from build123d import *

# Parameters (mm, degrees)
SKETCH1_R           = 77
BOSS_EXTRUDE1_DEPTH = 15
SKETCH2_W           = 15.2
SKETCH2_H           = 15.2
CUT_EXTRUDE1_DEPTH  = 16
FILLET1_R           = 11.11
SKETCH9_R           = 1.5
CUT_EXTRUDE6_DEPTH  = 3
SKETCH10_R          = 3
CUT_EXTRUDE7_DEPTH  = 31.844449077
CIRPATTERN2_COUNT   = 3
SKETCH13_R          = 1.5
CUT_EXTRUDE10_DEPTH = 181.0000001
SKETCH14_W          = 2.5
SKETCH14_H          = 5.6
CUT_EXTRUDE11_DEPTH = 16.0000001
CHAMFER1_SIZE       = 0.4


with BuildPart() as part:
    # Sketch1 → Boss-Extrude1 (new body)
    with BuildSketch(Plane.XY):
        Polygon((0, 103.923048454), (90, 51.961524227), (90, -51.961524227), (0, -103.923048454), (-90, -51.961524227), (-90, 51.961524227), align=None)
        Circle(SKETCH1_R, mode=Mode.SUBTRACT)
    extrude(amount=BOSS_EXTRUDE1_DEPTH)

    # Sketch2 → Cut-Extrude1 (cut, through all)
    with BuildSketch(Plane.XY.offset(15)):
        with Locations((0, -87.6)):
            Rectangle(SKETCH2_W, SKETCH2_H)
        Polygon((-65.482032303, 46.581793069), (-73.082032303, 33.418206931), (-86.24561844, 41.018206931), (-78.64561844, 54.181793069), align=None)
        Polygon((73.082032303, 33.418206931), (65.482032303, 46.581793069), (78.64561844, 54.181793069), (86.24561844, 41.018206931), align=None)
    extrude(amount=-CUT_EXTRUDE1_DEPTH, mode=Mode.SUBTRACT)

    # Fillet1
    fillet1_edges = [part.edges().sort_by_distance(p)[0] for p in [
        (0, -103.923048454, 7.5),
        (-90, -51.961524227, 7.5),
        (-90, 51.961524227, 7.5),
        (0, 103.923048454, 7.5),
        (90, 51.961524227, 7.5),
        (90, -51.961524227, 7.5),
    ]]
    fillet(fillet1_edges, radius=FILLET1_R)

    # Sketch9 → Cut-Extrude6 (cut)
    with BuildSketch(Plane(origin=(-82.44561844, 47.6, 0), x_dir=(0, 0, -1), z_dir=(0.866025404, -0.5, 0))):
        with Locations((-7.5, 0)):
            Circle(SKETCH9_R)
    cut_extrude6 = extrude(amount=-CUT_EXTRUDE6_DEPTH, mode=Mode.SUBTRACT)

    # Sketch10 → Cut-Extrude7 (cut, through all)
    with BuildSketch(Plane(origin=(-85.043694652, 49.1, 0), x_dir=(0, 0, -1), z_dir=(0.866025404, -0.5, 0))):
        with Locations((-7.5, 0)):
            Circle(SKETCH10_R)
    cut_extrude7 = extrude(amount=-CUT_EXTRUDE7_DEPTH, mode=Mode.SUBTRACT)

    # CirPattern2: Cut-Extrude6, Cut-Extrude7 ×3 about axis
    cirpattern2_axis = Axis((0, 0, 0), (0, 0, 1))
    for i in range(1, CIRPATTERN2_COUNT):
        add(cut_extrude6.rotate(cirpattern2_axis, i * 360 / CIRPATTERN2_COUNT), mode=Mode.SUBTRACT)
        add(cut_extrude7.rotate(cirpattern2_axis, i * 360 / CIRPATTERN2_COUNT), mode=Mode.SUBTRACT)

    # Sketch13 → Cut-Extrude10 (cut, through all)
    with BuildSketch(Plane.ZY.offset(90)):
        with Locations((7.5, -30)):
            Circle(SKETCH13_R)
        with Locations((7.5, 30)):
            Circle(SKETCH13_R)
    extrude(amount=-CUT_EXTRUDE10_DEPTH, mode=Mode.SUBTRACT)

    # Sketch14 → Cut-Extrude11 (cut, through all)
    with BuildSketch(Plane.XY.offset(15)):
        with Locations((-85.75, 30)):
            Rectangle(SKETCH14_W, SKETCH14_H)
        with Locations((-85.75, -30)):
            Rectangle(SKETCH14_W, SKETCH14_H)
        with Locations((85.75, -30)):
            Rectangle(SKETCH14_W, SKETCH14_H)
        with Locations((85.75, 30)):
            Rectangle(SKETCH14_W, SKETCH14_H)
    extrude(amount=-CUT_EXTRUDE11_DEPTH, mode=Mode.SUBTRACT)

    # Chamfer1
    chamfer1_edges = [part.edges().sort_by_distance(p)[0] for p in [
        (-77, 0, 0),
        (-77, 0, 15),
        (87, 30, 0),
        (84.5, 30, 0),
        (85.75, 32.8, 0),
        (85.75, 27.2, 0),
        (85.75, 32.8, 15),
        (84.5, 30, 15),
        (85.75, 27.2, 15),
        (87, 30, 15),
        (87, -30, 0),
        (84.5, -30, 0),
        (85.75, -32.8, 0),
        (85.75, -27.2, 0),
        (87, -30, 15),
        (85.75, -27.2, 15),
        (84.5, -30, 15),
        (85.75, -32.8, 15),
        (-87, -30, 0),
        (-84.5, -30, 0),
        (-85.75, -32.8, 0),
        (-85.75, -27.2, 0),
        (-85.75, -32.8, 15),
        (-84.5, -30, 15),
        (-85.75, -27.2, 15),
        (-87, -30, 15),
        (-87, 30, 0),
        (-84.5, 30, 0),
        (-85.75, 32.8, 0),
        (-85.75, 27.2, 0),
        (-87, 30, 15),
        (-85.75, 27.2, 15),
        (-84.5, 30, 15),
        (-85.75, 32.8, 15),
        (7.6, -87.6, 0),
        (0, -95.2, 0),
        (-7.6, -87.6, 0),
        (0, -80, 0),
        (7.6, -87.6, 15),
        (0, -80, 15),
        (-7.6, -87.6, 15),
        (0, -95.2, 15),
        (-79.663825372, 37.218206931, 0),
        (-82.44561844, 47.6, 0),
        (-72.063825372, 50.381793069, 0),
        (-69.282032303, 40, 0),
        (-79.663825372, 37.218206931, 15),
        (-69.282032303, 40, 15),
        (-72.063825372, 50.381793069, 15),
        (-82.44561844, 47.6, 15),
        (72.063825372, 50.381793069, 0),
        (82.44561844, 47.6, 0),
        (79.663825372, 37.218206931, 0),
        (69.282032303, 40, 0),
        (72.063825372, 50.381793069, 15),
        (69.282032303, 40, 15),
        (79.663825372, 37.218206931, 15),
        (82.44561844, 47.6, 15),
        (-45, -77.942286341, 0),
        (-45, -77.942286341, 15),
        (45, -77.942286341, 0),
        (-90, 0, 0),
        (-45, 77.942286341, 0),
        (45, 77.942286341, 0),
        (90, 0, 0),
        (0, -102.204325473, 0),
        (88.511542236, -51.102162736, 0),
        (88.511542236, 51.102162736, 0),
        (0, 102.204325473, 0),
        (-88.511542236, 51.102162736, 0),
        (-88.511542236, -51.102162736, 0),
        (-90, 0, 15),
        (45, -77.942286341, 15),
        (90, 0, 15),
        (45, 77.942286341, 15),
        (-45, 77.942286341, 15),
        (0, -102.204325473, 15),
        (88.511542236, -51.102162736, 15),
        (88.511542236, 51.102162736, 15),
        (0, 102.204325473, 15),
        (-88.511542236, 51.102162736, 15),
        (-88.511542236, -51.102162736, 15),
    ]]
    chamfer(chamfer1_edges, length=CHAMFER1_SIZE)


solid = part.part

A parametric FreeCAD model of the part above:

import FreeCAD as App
import Part
import Sketcher
Q = App.Units.Quantity


def edges_at(feature, points):
    """Names of the edges that pass closest to the given points."""
    edges = feature.Shape.Edges
    near = lambda p: min(range(len(edges)), key=lambda i: edges[i].distToShape(Part.Vertex(*p))[0])
    return sorted({f"Edge{near(p) + 1}" for p in points})

doc = App.newDocument("Part")
body = doc.addObject("PartDesign::Body", "Body")

# Sketch on XY plane
sketch1 = body.newObject("Sketcher::SketchObject", "Sketch")
sketch1.AttachmentSupport = (doc.getObject("XY_Plane"), [""])
sketch1.MapMode = "FlatFace"
sketch1.addGeometry(Part.LineSegment(App.Vector(90, 52, 0), App.Vector(0, 104, 0)), False)
sketch1.addGeometry(Part.LineSegment(App.Vector(0, 104, 0), App.Vector(-90, 52, 0)), False)
sketch1.addGeometry(Part.LineSegment(App.Vector(-90, 52, 0), App.Vector(-90, -52, 0)), False)
sketch1.addGeometry(Part.LineSegment(App.Vector(-90, -52, 0), App.Vector(0, -104, 0)), False)
sketch1.addGeometry(Part.LineSegment(App.Vector(0, -104, 0), App.Vector(90, -52, 0)), False)
sketch1.addGeometry(Part.LineSegment(App.Vector(90, -52, 0), App.Vector(90, 52, 0)), False)
sketch1.addGeometry(Part.Circle(App.Vector(0, 0, 0), App.Vector(0, 0, 1), 77), False)
sketch1.addConstraint(Sketcher.Constraint("Coincident", 0, 2, 1, 1))
sketch1.addConstraint(Sketcher.Constraint("Coincident", 1, 2, 2, 1))
sketch1.addConstraint(Sketcher.Constraint("Coincident", 2, 2, 3, 1))
sketch1.addConstraint(Sketcher.Constraint("Coincident", 3, 2, 4, 1))
sketch1.addConstraint(Sketcher.Constraint("Coincident", 4, 2, 5, 1))
sketch1.addConstraint(Sketcher.Constraint("Coincident", 5, 2, 0, 1))
sketch1.addConstraint(Sketcher.Constraint("Vertical", 2))
sketch1.addConstraint(Sketcher.Constraint("Vertical", 5))
sketch1.addConstraint(Sketcher.Constraint("Coincident", 6, 3, -1, 1))
sketch1.addConstraint(Sketcher.Constraint("Symmetric", 0, 2, 3, 2, -1, 1))
sketch1.addConstraint(Sketcher.Constraint("Symmetric", 1, 2, 4, 2, -1, 1))
sketch1.addConstraint(Sketcher.Constraint("PointOnObject", 0, 2, -2))
sketch1.addConstraint(Sketcher.Constraint("Parallel", 0, 3))
sketch1.addConstraint(Sketcher.Constraint("Horizontal", 2, 2, 4, 2))
sketch1.addConstraint(Sketcher.Constraint("Diameter", 6, Q("154 mm")))
sketch1.addConstraint(Sketcher.Constraint("Angle", 0, Q("150 deg")))
sketch1.addConstraint(Sketcher.Constraint("DistanceX", 1, 2, -1, 1, Q("90 mm")))
sketch1.addConstraint(Sketcher.Constraint("DistanceY", 2, 2, 2, 1, Q("103.923048 mm")))
pad1 = body.newObject("PartDesign::Pad", "Pad")
pad1.Profile = sketch1
pad1.Length = 15

# Sketch on XY plane
sketch2 = body.newObject("Sketcher::SketchObject", "Sketch001")
sketch2.AttachmentSupport = (doc.getObject("XY_Plane"), [""])
sketch2.MapMode = "FlatFace"
sketch2.AttachmentOffset = App.Placement(App.Vector(0, 0, 15), App.Rotation())
sketch2.addGeometry(Part.LineSegment(App.Vector(-8, -80, 0), App.Vector(-8, -95, 0)), False)
sketch2.addGeometry(Part.LineSegment(App.Vector(-8, -95, 0), App.Vector(8, -95, 0)), False)
sketch2.addGeometry(Part.LineSegment(App.Vector(8, -95, 0), App.Vector(8, -80, 0)), False)
sketch2.addGeometry(Part.LineSegment(App.Vector(8, -80, 0), App.Vector(-8, -80, 0)), False)
sketch2.addGeometry(Part.LineSegment(App.Vector(-73, 33, 0), App.Vector(-65, 47, 0)), False)
sketch2.addGeometry(Part.LineSegment(App.Vector(-65, 47, 0), App.Vector(-79, 54, 0)), False)
sketch2.addGeometry(Part.LineSegment(App.Vector(-79, 54, 0), App.Vector(-86, 41, 0)), False)
sketch2.addGeometry(Part.LineSegment(App.Vector(-86, 41, 0), App.Vector(-73, 33, 0)), False)
sketch2.addGeometry(Part.LineSegment(App.Vector(65, 47, 0), App.Vector(73, 33, 0)), False)
sketch2.addGeometry(Part.LineSegment(App.Vector(73, 33, 0), App.Vector(86, 41, 0)), False)
sketch2.addGeometry(Part.LineSegment(App.Vector(86, 41, 0), App.Vector(79, 54, 0)), False)
sketch2.addGeometry(Part.LineSegment(App.Vector(79, 54, 0), App.Vector(65, 47, 0)), False)
sketch2.addConstraint(Sketcher.Constraint("Coincident", 0, 2, 1, 1))
sketch2.addConstraint(Sketcher.Constraint("Coincident", 1, 2, 2, 1))
sketch2.addConstraint(Sketcher.Constraint("Coincident", 2, 2, 3, 1))
sketch2.addConstraint(Sketcher.Constraint("Coincident", 3, 2, 0, 1))
sketch2.addConstraint(Sketcher.Constraint("Coincident", 4, 2, 5, 1))
sketch2.addConstraint(Sketcher.Constraint("Coincident", 5, 2, 6, 1))
sketch2.addConstraint(Sketcher.Constraint("Coincident", 6, 2, 7, 1))
sketch2.addConstraint(Sketcher.Constraint("Coincident", 7, 2, 4, 1))
sketch2.addConstraint(Sketcher.Constraint("Coincident", 8, 2, 9, 1))
sketch2.addConstraint(Sketcher.Constraint("Coincident", 9, 2, 10, 1))
sketch2.addConstraint(Sketcher.Constraint("Coincident", 10, 2, 11, 1))
sketch2.addConstraint(Sketcher.Constraint("Coincident", 11, 2, 8, 1))
sketch2.addConstraint(Sketcher.Constraint("Vertical", 0))
sketch2.addConstraint(Sketcher.Constraint("Horizontal", 1))
sketch2.addConstraint(Sketcher.Constraint("Vertical", 2))
sketch2.addConstraint(Sketcher.Constraint("Horizontal", 3))
sketch2.addConstraint(Sketcher.Constraint("Symmetric", 7, 2, 8, 2, -2))
sketch2.addConstraint(Sketcher.Constraint("Symmetric", 6, 2, 9, 2, -2))
sketch2.addConstraint(Sketcher.Constraint("Symmetric", 5, 2, 10, 2, -2))
sketch2.addConstraint(Sketcher.Constraint("Symmetric", 4, 2, 11, 2, -2))
sketch2.addConstraint(Sketcher.Constraint("Perpendicular", 4, 5))
sketch2.addConstraint(Sketcher.Constraint("Perpendicular", 5, 6))
sketch2.addConstraint(Sketcher.Constraint("Perpendicular", 6, 7))
sketch2.addConstraint(Sketcher.Constraint("Equal", 3, 0))
sketch2.addConstraint(Sketcher.Constraint("Equal", 4, 5))
sketch2.addConstraint(Sketcher.Constraint("Angle", 4, Q("60 deg")))
sketch2.addConstraint(Sketcher.Constraint("DistanceX", 1, 1, 1, 2, Q("15.2 mm")))
sketch2.addConstraint(Sketcher.Constraint("DistanceY", 2, 2, -1, 1, Q("80 mm")))
sketch2.addConstraint(Sketcher.Constraint("Distance", 4, Q("15.2 mm")))
sketch2.addConstraint(Sketcher.Constraint("DistanceX", 0, 2, -1, 1, Q("7.6 mm")))
sketch2.addConstraint(Sketcher.Constraint("DistanceX", 5, 2, -1, 1, Q("78.645618 mm")))
sketch2.addConstraint(Sketcher.Constraint("DistanceY", -1, 1, 4, 2, Q("46.581793 mm")))
pocket1 = body.newObject("PartDesign::Pocket", "Pocket")
pocket1.Profile = sketch2
pocket1.Type = "ThroughAll"
doc.recompute()

fillet = body.newObject("PartDesign::Fillet", "Fillet")
fillet.Base = (pocket1, edges_at(pocket1, [
    (0, -103.923, 7.5),
    (-90, -51.962, 7.5),
    (-90, 51.962, 7.5),
    (0, 103.923, 7.5),
    (90, 51.962, 7.5),
    (90, -51.962, 7.5),
]))
fillet.Radius = 11.11

# Sketch on an angled plane
sketch3 = body.newObject("Sketcher::SketchObject", "Sketch002")
sketch3.Placement = App.Placement(App.Vector(-82.445618, 47.6, 0), App.Rotation(App.Vector(0, 0, -1), App.Vector(0.5, 0.866025404, 0), App.Vector(0.866025404, -0.5, 0), "ZXY"))
sketch3.addGeometry(Part.Circle(App.Vector(-7.5, 0, 0), App.Vector(0, 0, 1), 1.5), False)
sketch3.addConstraint(Sketcher.Constraint("PointOnObject", 0, 3, -1))
sketch3.addConstraint(Sketcher.Constraint("Diameter", 0, Q("3 mm")))
sketch3.addConstraint(Sketcher.Constraint("DistanceX", 0, 3, -1, 1, Q("7.5 mm")))
pocket2 = body.newObject("PartDesign::Pocket", "Pocket001")
pocket2.Profile = sketch3
pocket2.Length = 3

# Sketch on an angled plane
sketch4 = body.newObject("Sketcher::SketchObject", "Sketch003")
sketch4.Placement = App.Placement(App.Vector(-85.043695, 49.1, 0), App.Rotation(App.Vector(0, 0, -1), App.Vector(0.5, 0.866025404, 0), App.Vector(0.866025404, -0.5, 0), "ZXY"))
sketch4.addGeometry(Part.Circle(App.Vector(-7.5, 0, 0), App.Vector(0, 0, 1), 3), False)
sketch4.addConstraint(Sketcher.Constraint("PointOnObject", 0, 3, -1))
sketch4.addConstraint(Sketcher.Constraint("Diameter", 0, Q("6 mm")))
sketch4.addConstraint(Sketcher.Constraint("DistanceX", 0, 3, -1, 1, Q("7.5 mm")))
pocket3 = body.newObject("PartDesign::Pocket", "Pocket002")
pocket3.Profile = sketch4
pocket3.Type = "ThroughAll"
doc.recompute()

polarpattern = body.newObject("PartDesign::PolarPattern", "PolarPattern")
polarpattern.Originals = [pocket2, pocket3]
polarpattern.Axis = (doc.getObject("Z_Axis"), [""])
polarpattern.Angle = 360
polarpattern.Occurrences = 3
body.Tip = polarpattern

# Sketch on YZ plane
sketch5 = body.newObject("Sketcher::SketchObject", "Sketch004")
sketch5.AttachmentSupport = (doc.getObject("YZ_Plane"), [""])
sketch5.MapMode = "FlatFace"
sketch5.AttachmentOffset = App.Placement(App.Vector(0, 0, -90), App.Rotation())
sketch5.addGeometry(Part.Circle(App.Vector(-30, 7.5, 0), App.Vector(0, 0, 1), 1.5), False)
sketch5.addGeometry(Part.Circle(App.Vector(30, 7.5, 0), App.Vector(0, 0, 1), 1.5), False)
sketch5.addConstraint(Sketcher.Constraint("Equal", 0, 1))
sketch5.addConstraint(Sketcher.Constraint("Symmetric", 0, 3, 1, 3, -2))
sketch5.addConstraint(Sketcher.Constraint("Diameter", 0, Q("3 mm")))
sketch5.addConstraint(Sketcher.Constraint("DistanceX", 0, 3, -1, 1, Q("30 mm")))
sketch5.addConstraint(Sketcher.Constraint("DistanceY", -1, 1, 0, 3, Q("7.5 mm")))
pocket4 = body.newObject("PartDesign::Pocket", "Pocket003")
pocket4.Profile = sketch5
pocket4.Type = "ThroughAll"
pocket4.Reversed = True

# Sketch on XY plane
sketch6 = body.newObject("Sketcher::SketchObject", "Sketch005")
sketch6.AttachmentSupport = (doc.getObject("XY_Plane"), [""])
sketch6.MapMode = "FlatFace"
sketch6.AttachmentOffset = App.Placement(App.Vector(0, 0, 15), App.Rotation())
sketch6.addGeometry(Part.LineSegment(App.Vector(-87, 32.8, 0), App.Vector(-87, 27.2, 0)), False)
sketch6.addGeometry(Part.LineSegment(App.Vector(-87, 27.2, 0), App.Vector(-84.5, 27.2, 0)), False)
sketch6.addGeometry(Part.LineSegment(App.Vector(-84.5, 27.2, 0), App.Vector(-84.5, 32.8, 0)), False)
sketch6.addGeometry(Part.LineSegment(App.Vector(-84.5, 32.8, 0), App.Vector(-87, 32.8, 0)), False)
sketch6.addGeometry(Part.LineSegment(App.Vector(-87, -27.2, 0), App.Vector(-87, -32.8, 0)), False)
sketch6.addGeometry(Part.LineSegment(App.Vector(-87, -32.8, 0), App.Vector(-84.5, -32.8, 0)), False)
sketch6.addGeometry(Part.LineSegment(App.Vector(-84.5, -32.8, 0), App.Vector(-84.5, -27.2, 0)), False)
sketch6.addGeometry(Part.LineSegment(App.Vector(-84.5, -27.2, 0), App.Vector(-87, -27.2, 0)), False)
sketch6.addGeometry(Part.LineSegment(App.Vector(84.5, -27.2, 0), App.Vector(84.5, -32.8, 0)), False)
sketch6.addGeometry(Part.LineSegment(App.Vector(84.5, -32.8, 0), App.Vector(87, -32.8, 0)), False)
sketch6.addGeometry(Part.LineSegment(App.Vector(87, -32.8, 0), App.Vector(87, -27.2, 0)), False)
sketch6.addGeometry(Part.LineSegment(App.Vector(87, -27.2, 0), App.Vector(84.5, -27.2, 0)), False)
sketch6.addGeometry(Part.LineSegment(App.Vector(84.5, 32.8, 0), App.Vector(84.5, 27.2, 0)), False)
sketch6.addGeometry(Part.LineSegment(App.Vector(84.5, 27.2, 0), App.Vector(87, 27.2, 0)), False)
sketch6.addGeometry(Part.LineSegment(App.Vector(87, 27.2, 0), App.Vector(87, 32.8, 0)), False)
sketch6.addGeometry(Part.LineSegment(App.Vector(87, 32.8, 0), App.Vector(84.5, 32.8, 0)), False)
sketch6.addConstraint(Sketcher.Constraint("Coincident", 0, 2, 1, 1))
sketch6.addConstraint(Sketcher.Constraint("Coincident", 1, 2, 2, 1))
sketch6.addConstraint(Sketcher.Constraint("Coincident", 2, 2, 3, 1))
sketch6.addConstraint(Sketcher.Constraint("Coincident", 3, 2, 0, 1))
sketch6.addConstraint(Sketcher.Constraint("Coincident", 4, 2, 5, 1))
sketch6.addConstraint(Sketcher.Constraint("Coincident", 5, 2, 6, 1))
sketch6.addConstraint(Sketcher.Constraint("Coincident", 6, 2, 7, 1))
sketch6.addConstraint(Sketcher.Constraint("Coincident", 7, 2, 4, 1))
sketch6.addConstraint(Sketcher.Constraint("Coincident", 8, 2, 9, 1))
sketch6.addConstraint(Sketcher.Constraint("Coincident", 9, 2, 10, 1))
sketch6.addConstraint(Sketcher.Constraint("Coincident", 10, 2, 11, 1))
sketch6.addConstraint(Sketcher.Constraint("Coincident", 11, 2, 8, 1))
sketch6.addConstraint(Sketcher.Constraint("Coincident", 12, 2, 13, 1))
sketch6.addConstraint(Sketcher.Constraint("Coincident", 13, 2, 14, 1))
sketch6.addConstraint(Sketcher.Constraint("Coincident", 14, 2, 15, 1))
sketch6.addConstraint(Sketcher.Constraint("Coincident", 15, 2, 12, 1))
sketch6.addConstraint(Sketcher.Constraint("Vertical", 0))
sketch6.addConstraint(Sketcher.Constraint("Horizontal", 1))
sketch6.addConstraint(Sketcher.Constraint("Vertical", 2))
sketch6.addConstraint(Sketcher.Constraint("Horizontal", 3))
sketch6.addConstraint(Sketcher.Constraint("Vertical", 4))
sketch6.addConstraint(Sketcher.Constraint("Horizontal", 5))
sketch6.addConstraint(Sketcher.Constraint("Vertical", 6))
sketch6.addConstraint(Sketcher.Constraint("Horizontal", 7))
sketch6.addConstraint(Sketcher.Constraint("Vertical", 8))
sketch6.addConstraint(Sketcher.Constraint("Horizontal", 9))
sketch6.addConstraint(Sketcher.Constraint("Vertical", 10))
sketch6.addConstraint(Sketcher.Constraint("Horizontal", 11))
sketch6.addConstraint(Sketcher.Constraint("Vertical", 12))
sketch6.addConstraint(Sketcher.Constraint("Horizontal", 13))
sketch6.addConstraint(Sketcher.Constraint("Vertical", 14))
sketch6.addConstraint(Sketcher.Constraint("Horizontal", 15))
sketch6.addConstraint(Sketcher.Constraint("Symmetric", 2, 2, 8, 2, -1, 1))
sketch6.addConstraint(Sketcher.Constraint("Symmetric", 0, 2, 10, 2, -1, 1))
sketch6.addConstraint(Sketcher.Constraint("Symmetric", 6, 2, 12, 2, -1, 1))
sketch6.addConstraint(Sketcher.Constraint("Symmetric", 4, 2, 14, 2, -1, 1))
sketch6.addConstraint(Sketcher.Constraint("Symmetric", 5, 2, 8, 2, -2))
sketch6.addConstraint(Sketcher.Constraint("Symmetric", 7, 2, 10, 2, -2))
sketch6.addConstraint(Sketcher.Constraint("DistanceX", 1, 1, 1, 2, Q("2.5 mm")))
sketch6.addConstraint(Sketcher.Constraint("DistanceY", 0, 2, 0, 1, Q("5.6 mm")))
sketch6.addConstraint(Sketcher.Constraint("DistanceX", 0, 2, -1, 1, Q("87 mm")))
sketch6.addConstraint(Sketcher.Constraint("DistanceY", 4, 2, 0, 2, Q("60 mm")))
pocket5 = body.newObject("PartDesign::Pocket", "Pocket004")
pocket5.Profile = sketch6
pocket5.Type = "ThroughAll"
doc.recompute()

chamfer = body.newObject("PartDesign::Chamfer", "Chamfer")
chamfer.Base = (pocket5, edges_at(pocket5, [
    (-77, 0, 0),
    (-77, 0, 15),
    (87, 30, 0),
    (84.5, 30, 0),
    (85.75, 32.8, 0),
    (85.75, 27.2, 0),
    (85.75, 32.8, 15),
    (84.5, 30, 15),
    (85.75, 27.2, 15),
    (87, 30, 15),
    (87, -30, 0),
    (84.5, -30, 0),
    (85.75, -32.8, 0),
    (85.75, -27.2, 0),
    (87, -30, 15),
    (85.75, -27.2, 15),
    (84.5, -30, 15),
    (85.75, -32.8, 15),
    (-87, -30, 0),
    (-84.5, -30, 0),
    (-85.75, -32.8, 0),
    (-85.75, -27.2, 0),
    (-85.75, -32.8, 15),
    (-84.5, -30, 15),
    (-85.75, -27.2, 15),
    (-87, -30, 15),
    (-87, 30, 0),
    (-84.5, 30, 0),
    (-85.75, 32.8, 0),
    (-85.75, 27.2, 0),
    (-87, 30, 15),
    (-85.75, 27.2, 15),
    (-84.5, 30, 15),
    (-85.75, 32.8, 15),
    (7.6, -87.6, 0),
    (0, -95.2, 0),
    (-7.6, -87.6, 0),
    (0, -80, 0),
    (7.6, -87.6, 15),
    (0, -80, 15),
    (-7.6, -87.6, 15),
    (0, -95.2, 15),
    (-79.664, 37.218, 0),
    (-82.446, 47.6, 0),
    (-72.064, 50.382, 0),
    (-69.282, 40, 0),
    (-79.664, 37.218, 15),
    (-69.282, 40, 15),
    (-72.064, 50.382, 15),
    (-82.446, 47.6, 15),
    (72.064, 50.382, 0),
    (82.446, 47.6, 0),
    (79.664, 37.218, 0),
    (69.282, 40, 0),
    (72.064, 50.382, 15),
    (69.282, 40, 15),
    (79.664, 37.218, 15),
    (82.446, 47.6, 15),
    (-45, -77.942, 0),
    (-45, -77.942, 15),
    (45, -77.942, 0),
    (-90, 0, 0),
    (-45, 77.942, 0),
    (45, 77.942, 0),
    (90, 0, 0),
    (0, -102.204, 0),
    (88.512, -51.102, 0),
    (88.512, 51.102, 0),
    (0, 102.204, 0),
    (-88.512, 51.102, 0),
    (-88.512, -51.102, 0),
    (-90, 0, 15),
    (45, -77.942, 15),
    (90, 0, 15),
    (45, 77.942, 15),
    (-45, 77.942, 15),
    (0, -102.204, 15),
    (88.512, -51.102, 15),
    (88.512, 51.102, 15),
    (0, 102.204, 15),
    (-88.512, 51.102, 15),
    (-88.512, -51.102, 15),
]))
chamfer.Size = 0.4

doc.recompute()
